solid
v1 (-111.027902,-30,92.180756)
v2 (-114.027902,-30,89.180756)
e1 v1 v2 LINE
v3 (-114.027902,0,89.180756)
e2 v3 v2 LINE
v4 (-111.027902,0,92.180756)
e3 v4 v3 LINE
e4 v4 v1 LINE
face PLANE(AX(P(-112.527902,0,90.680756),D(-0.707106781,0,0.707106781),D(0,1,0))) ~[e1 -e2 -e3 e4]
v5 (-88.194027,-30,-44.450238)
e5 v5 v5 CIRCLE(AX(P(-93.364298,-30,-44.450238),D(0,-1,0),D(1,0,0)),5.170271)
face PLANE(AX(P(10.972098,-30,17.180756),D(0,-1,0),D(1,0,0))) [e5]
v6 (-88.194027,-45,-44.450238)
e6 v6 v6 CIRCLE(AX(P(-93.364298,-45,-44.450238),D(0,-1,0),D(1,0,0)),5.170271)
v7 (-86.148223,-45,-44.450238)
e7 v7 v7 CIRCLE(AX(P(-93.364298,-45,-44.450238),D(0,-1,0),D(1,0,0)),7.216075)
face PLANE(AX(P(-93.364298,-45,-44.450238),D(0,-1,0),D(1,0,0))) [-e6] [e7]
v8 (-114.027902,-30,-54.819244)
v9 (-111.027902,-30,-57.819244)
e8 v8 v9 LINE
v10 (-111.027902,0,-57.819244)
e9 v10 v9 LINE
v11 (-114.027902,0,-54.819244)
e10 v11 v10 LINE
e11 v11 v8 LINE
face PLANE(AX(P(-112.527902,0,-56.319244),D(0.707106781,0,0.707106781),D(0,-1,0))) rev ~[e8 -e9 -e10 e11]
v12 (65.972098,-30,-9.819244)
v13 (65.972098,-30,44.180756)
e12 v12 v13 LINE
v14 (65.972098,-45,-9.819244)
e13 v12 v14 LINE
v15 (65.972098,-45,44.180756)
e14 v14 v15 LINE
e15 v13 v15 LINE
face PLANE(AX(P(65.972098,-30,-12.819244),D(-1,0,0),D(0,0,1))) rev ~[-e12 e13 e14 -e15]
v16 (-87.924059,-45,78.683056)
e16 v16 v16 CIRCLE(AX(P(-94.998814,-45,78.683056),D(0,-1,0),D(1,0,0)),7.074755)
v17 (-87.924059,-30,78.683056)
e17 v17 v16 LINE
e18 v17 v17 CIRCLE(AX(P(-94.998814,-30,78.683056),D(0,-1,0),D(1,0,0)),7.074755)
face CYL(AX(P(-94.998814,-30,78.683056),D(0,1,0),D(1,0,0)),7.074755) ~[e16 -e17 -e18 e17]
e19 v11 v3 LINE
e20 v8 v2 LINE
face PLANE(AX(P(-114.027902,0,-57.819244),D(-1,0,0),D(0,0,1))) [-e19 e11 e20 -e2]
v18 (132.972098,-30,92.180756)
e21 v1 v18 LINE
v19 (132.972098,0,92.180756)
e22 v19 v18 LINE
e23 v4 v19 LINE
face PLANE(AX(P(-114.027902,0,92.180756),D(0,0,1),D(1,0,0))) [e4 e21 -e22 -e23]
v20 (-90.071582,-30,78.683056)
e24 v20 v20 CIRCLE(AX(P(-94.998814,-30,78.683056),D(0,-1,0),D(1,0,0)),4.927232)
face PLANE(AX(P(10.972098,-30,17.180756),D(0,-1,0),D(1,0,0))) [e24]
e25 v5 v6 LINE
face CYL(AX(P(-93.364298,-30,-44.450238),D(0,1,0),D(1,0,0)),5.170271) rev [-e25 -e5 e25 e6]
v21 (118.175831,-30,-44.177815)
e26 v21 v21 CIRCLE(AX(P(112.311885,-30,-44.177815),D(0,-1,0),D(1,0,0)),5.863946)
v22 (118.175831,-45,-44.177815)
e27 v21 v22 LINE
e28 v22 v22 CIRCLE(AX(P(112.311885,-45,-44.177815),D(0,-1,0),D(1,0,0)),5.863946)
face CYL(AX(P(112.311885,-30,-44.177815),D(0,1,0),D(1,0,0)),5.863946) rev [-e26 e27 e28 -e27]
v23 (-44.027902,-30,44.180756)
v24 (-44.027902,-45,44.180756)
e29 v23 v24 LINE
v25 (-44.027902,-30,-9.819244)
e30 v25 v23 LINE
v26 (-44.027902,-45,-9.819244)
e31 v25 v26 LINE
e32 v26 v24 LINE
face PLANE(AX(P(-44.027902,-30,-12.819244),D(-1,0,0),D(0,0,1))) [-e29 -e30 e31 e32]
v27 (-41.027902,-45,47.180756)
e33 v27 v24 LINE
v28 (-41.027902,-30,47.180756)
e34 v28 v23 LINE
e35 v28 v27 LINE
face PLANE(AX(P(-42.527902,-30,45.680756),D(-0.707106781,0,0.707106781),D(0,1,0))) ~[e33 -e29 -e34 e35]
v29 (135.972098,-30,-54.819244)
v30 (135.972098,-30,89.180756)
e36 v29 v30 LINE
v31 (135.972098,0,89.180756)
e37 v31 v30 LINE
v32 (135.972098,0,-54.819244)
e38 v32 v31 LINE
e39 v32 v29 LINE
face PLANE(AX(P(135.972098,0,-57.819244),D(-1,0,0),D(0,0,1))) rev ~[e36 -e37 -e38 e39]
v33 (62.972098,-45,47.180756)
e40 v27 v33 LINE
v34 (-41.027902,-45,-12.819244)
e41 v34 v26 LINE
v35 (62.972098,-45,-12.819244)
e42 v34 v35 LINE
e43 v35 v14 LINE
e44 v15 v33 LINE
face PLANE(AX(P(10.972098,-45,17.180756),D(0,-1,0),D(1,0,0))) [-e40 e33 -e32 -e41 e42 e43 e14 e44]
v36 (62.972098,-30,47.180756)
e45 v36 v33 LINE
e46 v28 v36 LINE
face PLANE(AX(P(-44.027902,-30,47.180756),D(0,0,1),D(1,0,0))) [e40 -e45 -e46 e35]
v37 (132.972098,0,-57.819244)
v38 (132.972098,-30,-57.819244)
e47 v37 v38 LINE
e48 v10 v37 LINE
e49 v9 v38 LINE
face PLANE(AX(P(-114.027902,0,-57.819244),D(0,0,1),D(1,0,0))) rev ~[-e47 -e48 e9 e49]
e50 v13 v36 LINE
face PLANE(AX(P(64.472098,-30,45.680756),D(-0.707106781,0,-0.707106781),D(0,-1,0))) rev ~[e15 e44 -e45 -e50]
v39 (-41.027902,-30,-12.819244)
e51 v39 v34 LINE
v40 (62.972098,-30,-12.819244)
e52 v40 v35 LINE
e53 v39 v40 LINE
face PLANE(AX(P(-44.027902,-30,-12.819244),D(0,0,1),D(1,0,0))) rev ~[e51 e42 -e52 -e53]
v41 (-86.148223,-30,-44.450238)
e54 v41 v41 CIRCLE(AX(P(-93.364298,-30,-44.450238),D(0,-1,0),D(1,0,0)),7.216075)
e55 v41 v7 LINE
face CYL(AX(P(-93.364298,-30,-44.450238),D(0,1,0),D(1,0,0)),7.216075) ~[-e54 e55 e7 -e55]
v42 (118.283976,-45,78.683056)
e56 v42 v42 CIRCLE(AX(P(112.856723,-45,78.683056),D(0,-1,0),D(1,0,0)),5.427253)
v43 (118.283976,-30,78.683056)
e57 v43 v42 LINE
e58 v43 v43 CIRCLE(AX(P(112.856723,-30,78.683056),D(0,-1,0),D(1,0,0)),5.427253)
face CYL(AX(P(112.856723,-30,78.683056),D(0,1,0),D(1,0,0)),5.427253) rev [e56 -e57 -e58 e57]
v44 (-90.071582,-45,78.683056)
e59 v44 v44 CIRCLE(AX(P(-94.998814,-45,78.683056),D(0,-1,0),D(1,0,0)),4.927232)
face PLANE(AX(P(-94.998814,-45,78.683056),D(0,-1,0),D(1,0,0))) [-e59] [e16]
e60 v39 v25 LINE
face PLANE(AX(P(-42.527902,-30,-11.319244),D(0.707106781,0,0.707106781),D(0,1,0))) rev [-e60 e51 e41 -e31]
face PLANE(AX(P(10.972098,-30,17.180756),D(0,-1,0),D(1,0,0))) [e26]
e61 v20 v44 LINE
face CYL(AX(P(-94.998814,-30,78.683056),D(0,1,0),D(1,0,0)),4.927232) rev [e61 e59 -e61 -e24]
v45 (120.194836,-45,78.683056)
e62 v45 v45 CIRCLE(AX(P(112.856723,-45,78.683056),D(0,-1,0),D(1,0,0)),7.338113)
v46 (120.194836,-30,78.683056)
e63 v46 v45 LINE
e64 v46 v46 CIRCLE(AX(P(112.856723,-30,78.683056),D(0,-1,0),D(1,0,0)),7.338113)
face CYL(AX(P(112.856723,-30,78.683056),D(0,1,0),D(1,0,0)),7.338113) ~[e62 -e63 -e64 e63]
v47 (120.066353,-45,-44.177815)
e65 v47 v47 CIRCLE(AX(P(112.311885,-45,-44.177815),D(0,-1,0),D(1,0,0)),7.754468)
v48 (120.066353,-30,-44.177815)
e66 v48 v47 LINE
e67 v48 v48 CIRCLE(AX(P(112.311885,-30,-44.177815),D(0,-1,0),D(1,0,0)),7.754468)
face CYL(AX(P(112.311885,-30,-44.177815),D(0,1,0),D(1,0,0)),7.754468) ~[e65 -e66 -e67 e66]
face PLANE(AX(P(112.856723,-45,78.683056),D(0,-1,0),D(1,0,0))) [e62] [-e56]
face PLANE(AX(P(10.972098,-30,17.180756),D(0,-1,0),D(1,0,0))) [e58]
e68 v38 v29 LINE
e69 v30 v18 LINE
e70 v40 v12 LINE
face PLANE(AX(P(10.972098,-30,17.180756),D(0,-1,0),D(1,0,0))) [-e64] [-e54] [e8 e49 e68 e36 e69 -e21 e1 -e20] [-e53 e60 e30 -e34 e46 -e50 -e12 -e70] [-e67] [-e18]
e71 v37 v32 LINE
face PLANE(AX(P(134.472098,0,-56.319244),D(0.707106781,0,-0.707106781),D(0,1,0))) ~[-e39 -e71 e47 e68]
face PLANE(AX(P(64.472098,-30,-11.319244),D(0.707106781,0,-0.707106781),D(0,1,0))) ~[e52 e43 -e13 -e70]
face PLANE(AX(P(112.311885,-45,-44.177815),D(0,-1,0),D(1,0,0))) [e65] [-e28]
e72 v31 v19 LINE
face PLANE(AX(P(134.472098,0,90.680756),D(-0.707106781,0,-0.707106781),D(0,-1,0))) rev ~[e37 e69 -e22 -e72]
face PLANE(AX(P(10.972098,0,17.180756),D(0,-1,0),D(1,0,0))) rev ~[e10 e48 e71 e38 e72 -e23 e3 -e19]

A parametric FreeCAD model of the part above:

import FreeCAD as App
import Part
import Sketcher

V = App.Vector
Q = App.Units.Quantity


def edges_at(feature, points):
    """Names of the edges that pass closest to the given points."""
    edges = feature.Shape.Edges
    near = lambda p: min(range(len(edges)), key=lambda i: edges[i].distToShape(Part.Vertex(*p))[0])
    return sorted({f"Edge{near(p) + 1}" for p in points})


def add_polygon(sketch, points):
    """Adds a closed chain of lines whose ends are joined by coincident constraints."""
    first, n = sketch.GeometryCount, len(points)
    for a, b in zip(points, points[1:] + points[:1]):
        sketch.addGeometry(Part.LineSegment(App.Vector(*a, 0), App.Vector(*b, 0)), False)
    for i in range(n):
        sketch.addConstraint(Sketcher.Constraint("Coincident", first + i, 2, first + (i + 1) % n, 1))

doc = App.newDocument("Part")
body = doc.addObject("PartDesign::Body", "Body")

sketch1 = body.newObject("Sketcher::SketchObject", "Sketch")
sketch1.AttachmentSupport = (doc.getObject("XZ_Plane"), [""])
sketch1.MapMode = "FlatFace"
add_polygon(sketch1, [(-114.027902, 92.180756), (-114.027902, -57.819244), (135.972098, -57.819244), (135.972098, 92.180756)])
sketch1.addConstraint([
    Sketcher.Constraint("Vertical", 0),
    Sketcher.Constraint("Horizontal", 1),
    Sketcher.Constraint("Vertical", 2),
    Sketcher.Constraint("Horizontal", 3),
    Sketcher.Constraint("DistanceX", 1, 1, 1, 2, Q("250 mm")),
    Sketcher.Constraint("DistanceY", 0, 2, 0, 1, Q("150 mm")),
    Sketcher.Constraint("DistanceX", 0, 2, -1, 1, Q("114.027902 mm")),
    Sketcher.Constraint("DistanceY", 0, 2, -1, 1, Q("57.819244 mm")),
])
pad1 = body.newObject("PartDesign::Pad", "Pad")
pad1.Profile = sketch1
pad1.Length = 30
doc.recompute()

chamfer = body.newObject("PartDesign::Chamfer", "Chamfer")
chamfer.Base = (pad1, edges_at(pad1, [(-114.028, -15, -57.819)]))
chamfer.Size = 3
doc.recompute()

chamfer2 = body.newObject("PartDesign::Chamfer", "Chamfer001")
chamfer2.Base = (chamfer, edges_at(chamfer, [(135.972, -15, -57.819)]))
chamfer2.Size = 3
doc.recompute()

chamfer3 = body.newObject("PartDesign::Chamfer", "Chamfer002")
chamfer3.Base = (chamfer2, edges_at(chamfer2, [(135.972, -15, 92.181)]))
chamfer3.Size = 3
doc.recompute()

chamfer4 = body.newObject("PartDesign::Chamfer", "Chamfer003")
chamfer4.Base = (chamfer3, edges_at(chamfer3, [(-114.028, -15, 92.181)]))
chamfer4.Size = 3

sketch2 = body.newObject("Sketcher::SketchObject", "Sketch001")
sketch2.AttachmentSupport = (doc.getObject("XZ_Plane"), [""])
sketch2.MapMode = "FlatFace"
sketch2.AttachmentOffset = App.Placement(V(0, 0, 30), App.Rotation())
add_polygon(sketch2, [(-44.027902, 47.180756), (-44.027902, -12.819244), (65.972098, -12.819244), (65.972098, 47.180756)])
sketch2.addConstraint([
    Sketcher.Constraint("Vertical", 0),
    Sketcher.Constraint("Horizontal", 1),
    Sketcher.Constraint("Vertical", 2),
    Sketcher.Constraint("Horizontal", 3),
    Sketcher.Constraint("DistanceX", 1, 1, 1, 2, Q("110 mm")),
    Sketcher.Constraint("DistanceY", 0, 2, 0, 1, Q("60 mm")),
    Sketcher.Constraint("DistanceX", 0, 2, -1, 1, Q("44.027902 mm")),
    Sketcher.Constraint("DistanceY", 0, 2, -1, 1, Q("12.819244 mm")),
])
pad2 = body.newObject("PartDesign::Pad", "Pad001")
pad2.Profile = sketch2
pad2.Length = 15
doc.recompute()

chamfer5 = body.newObject("PartDesign::Chamfer", "Chamfer004")
chamfer5.Base = (pad2, edges_at(pad2, [
    (-44.028, -37.5, -12.819),
    (-44.028, -37.5, 47.181),
    (65.972, -37.5, -12.819),
    (65.972, -37.5, 47.181),
]))
chamfer5.Size = 3

sketch3 = body.newObject("Sketcher::SketchObject", "Sketch002")
sketch3.AttachmentSupport = (doc.getObject("XZ_Plane"), [""])
sketch3.MapMode = "FlatFace"
sketch3.AttachmentOffset = App.Placement(V(0, 0, 30), App.Rotation())
sketch3.addGeometry([
    Part.Circle(V(-93.364298, -44.450238, 0), V(0, 0, 1), 7.216075),
    Part.Circle(V(-93.364298, -44.450238, 0), V(0, 0, 1), 5.170271),
    Part.Circle(V(112.311885, -44.177815, 0), V(0, 0, 1), 7.754468),
    Part.Circle(V(112.311885, -44.177815, 0), V(0, 0, 1), 5.863946),
    Part.Circle(V(112.856723, 78.683056, 0), V(0, 0, 1), 7.338113),
    Part.Circle(V(112.856723, 78.683056, 0), V(0, 0, 1), 5.427253),
    Part.Circle(V(-94.998814, 78.683056, 0), V(0, 0, 1), 7.074755),
    Part.Circle(V(-94.998814, 78.683056, 0), V(0, 0, 1), 4.927232),
], False)
sketch3.addConstraint([
    Sketcher.Constraint("Coincident", 1, 3, 0, 3),
    Sketcher.Constraint("Coincident", 3, 3, 2, 3),
    Sketcher.Constraint("Coincident", 5, 3, 4, 3),
    Sketcher.Constraint("Coincident", 7, 3, 6, 3),
    Sketcher.Constraint("Horizontal", 5, 3, 6, 3),
    Sketcher.Constraint("Diameter", 0, Q("14.43215 mm")),
    Sketcher.Constraint("Diameter", 1, Q("10.340542 mm")),
    Sketcher.Constraint("Diameter", 6, Q("14.14951 mm")),
    Sketcher.Constraint("Diameter", 2, Q("15.508936 mm")),
    Sketcher.Constraint("Diameter", 3, Q("11.727892 mm")),
    Sketcher.Constraint("Diameter", 4, Q("14.676226 mm")),
    Sketcher.Constraint("Diameter", 5, Q("10.854506 mm")),
    Sketcher.Constraint("Diameter", 7, Q("9.854464 mm")),
    Sketcher.Constraint("DistanceX", 0, 3, -1, 1, Q("93.364298 mm")),
    Sketcher.Constraint("DistanceX", 6, 3, 2, 3, Q("207.310699 mm")),
    Sketcher.Constraint("DistanceY", 2, 3, 4, 3, Q("122.860871 mm")),
    Sketcher.Constraint("DistanceX", 0, 3, 4, 3, Q("206.221021 mm")),
    Sketcher.Constraint("DistanceY", 0, 3, -1, 1, Q("44.450238 mm")),
    Sketcher.Constraint("DistanceX", -1, 1, 2, 3, Q("112.311885 mm")),
    Sketcher.Constraint("DistanceY", 2, 3, -1, 1, Q("44.177815 mm")),
])
pad3 = body.newObject("PartDesign::Pad", "Pad002")
pad3.Profile = sketch3
pad3.Length = 15

doc.recompute()
